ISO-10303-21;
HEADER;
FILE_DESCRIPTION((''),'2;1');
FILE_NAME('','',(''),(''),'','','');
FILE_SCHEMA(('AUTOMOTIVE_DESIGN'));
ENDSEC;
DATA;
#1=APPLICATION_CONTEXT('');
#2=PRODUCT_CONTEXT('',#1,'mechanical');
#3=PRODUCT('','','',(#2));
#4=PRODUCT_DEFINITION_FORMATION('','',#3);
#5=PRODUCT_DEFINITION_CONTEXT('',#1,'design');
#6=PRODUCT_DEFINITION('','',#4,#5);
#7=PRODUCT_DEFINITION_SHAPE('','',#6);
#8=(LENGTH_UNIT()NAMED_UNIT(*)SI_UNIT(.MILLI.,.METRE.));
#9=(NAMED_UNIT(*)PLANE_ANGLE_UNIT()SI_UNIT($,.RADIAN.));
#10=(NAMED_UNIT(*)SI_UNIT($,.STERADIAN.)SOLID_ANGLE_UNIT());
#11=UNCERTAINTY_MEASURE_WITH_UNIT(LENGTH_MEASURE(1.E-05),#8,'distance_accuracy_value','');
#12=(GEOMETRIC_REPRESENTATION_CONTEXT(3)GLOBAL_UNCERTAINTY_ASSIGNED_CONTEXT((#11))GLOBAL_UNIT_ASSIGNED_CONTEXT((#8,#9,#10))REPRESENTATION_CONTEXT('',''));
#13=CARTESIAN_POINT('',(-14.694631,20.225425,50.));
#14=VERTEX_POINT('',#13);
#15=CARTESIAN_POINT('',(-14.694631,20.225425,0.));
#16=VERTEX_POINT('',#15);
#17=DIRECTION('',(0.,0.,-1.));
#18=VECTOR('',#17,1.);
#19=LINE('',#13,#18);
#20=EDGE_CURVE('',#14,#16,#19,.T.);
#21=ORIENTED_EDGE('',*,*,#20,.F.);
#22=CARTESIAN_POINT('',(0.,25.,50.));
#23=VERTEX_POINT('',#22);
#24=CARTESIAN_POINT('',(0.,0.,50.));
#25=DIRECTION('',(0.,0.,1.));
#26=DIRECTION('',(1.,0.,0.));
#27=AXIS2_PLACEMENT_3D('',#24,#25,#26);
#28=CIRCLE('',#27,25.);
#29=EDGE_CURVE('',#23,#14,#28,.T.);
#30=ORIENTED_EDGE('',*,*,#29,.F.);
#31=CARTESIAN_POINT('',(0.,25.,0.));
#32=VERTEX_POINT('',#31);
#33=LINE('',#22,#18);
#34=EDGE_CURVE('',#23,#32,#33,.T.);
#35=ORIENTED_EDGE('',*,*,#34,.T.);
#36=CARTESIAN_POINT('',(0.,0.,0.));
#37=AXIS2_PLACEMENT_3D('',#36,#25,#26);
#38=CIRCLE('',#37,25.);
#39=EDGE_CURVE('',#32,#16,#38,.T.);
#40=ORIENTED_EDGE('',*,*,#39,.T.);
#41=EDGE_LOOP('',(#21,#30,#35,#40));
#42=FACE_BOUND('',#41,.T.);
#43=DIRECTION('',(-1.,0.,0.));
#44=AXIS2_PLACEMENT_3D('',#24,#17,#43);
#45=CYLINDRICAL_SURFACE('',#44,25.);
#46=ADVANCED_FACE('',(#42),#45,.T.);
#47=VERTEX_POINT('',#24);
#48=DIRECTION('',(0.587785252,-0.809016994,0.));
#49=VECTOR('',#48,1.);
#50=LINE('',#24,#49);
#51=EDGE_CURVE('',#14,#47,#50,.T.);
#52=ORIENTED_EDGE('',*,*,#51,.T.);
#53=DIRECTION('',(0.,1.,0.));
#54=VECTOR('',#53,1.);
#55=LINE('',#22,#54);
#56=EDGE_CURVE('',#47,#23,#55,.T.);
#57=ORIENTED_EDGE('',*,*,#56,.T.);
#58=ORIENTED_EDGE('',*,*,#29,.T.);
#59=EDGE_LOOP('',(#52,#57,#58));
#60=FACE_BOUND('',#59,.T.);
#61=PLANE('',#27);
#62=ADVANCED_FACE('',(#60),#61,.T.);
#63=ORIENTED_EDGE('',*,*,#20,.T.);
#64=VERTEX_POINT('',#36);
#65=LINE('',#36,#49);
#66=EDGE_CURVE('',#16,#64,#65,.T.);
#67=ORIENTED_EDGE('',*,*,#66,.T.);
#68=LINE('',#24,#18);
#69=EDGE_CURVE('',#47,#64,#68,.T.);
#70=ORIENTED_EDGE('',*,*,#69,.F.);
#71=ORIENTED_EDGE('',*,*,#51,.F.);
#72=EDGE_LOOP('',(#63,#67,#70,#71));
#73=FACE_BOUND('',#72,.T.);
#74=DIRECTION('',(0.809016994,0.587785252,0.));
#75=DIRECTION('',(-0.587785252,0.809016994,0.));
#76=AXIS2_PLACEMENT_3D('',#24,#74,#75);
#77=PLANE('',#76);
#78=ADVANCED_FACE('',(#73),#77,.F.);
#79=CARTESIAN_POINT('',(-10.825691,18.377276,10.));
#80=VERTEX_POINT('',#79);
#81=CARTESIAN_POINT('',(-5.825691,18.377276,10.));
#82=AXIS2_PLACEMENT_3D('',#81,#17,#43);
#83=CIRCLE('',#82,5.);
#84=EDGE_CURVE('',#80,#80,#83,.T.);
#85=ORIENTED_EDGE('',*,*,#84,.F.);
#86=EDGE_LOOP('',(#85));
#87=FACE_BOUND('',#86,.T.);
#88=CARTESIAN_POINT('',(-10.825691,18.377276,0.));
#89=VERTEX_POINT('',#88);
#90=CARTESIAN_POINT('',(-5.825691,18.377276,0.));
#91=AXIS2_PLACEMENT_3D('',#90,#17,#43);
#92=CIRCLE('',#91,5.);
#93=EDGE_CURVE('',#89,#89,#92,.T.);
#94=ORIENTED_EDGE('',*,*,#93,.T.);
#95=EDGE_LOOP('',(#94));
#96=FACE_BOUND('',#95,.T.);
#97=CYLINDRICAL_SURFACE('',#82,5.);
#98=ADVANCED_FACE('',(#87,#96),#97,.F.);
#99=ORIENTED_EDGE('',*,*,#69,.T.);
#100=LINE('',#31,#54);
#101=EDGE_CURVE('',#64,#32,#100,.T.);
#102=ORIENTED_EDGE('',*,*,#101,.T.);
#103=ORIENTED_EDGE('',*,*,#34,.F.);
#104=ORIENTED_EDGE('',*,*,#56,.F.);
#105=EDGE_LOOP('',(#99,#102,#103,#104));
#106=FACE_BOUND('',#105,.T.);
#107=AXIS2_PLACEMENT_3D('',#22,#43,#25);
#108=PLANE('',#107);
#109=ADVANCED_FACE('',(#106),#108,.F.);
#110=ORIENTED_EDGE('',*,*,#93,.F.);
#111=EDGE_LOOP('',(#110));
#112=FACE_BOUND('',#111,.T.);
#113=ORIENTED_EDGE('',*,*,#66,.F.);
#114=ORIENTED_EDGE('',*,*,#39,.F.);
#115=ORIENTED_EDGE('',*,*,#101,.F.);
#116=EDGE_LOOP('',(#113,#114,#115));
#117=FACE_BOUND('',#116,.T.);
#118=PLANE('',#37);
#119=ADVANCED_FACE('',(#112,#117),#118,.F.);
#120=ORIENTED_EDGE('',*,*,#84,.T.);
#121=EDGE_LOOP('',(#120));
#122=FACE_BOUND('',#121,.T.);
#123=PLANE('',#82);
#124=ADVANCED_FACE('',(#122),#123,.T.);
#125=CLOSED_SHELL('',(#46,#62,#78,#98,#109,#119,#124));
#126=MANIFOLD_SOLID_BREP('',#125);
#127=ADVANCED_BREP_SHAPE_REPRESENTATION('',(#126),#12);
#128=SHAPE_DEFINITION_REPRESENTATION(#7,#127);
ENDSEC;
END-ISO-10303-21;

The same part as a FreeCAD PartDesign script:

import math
import FreeCAD as App
import Part
import Sketcher
Q = App.Units.Quantity

doc = App.newDocument("Part")
body = doc.addObject("PartDesign::Body", "Body")

# Sketch on XY plane
sketch1 = doc.addObject("Sketcher::SketchObject", "Sketch")
body.addObject(sketch1)
sketch1.AttachmentSupport = (doc.XY_Plane, [""])
sketch1.MapMode = "FlatFace"
sketch1.addGeometry([
    Part.LineSegment(App.Vector(0, 0, 0), App.Vector(0, 25, 0)),
    Part.ArcOfCircle(Part.Circle(App.Vector(0, 0, 0), App.Vector(0, 0, 1), 25), math.radians(90), math.radians(126)),
    Part.LineSegment(App.Vector(-15, 20, 0), App.Vector(0, 0, 0)),
], False)
sketch1.addConstraint([
    Sketcher.Constraint("Coincident", 0, 2, 1, 1),
    Sketcher.Constraint("Coincident", 1, 2, 2, 1),
    Sketcher.Constraint("Coincident", 2, 2, 0, 1),
    Sketcher.Constraint("Vertical", 0),
    Sketcher.Constraint("Coincident", 1, 3, -1, 1),
    Sketcher.Constraint("Coincident", 2, 2, -1, 1),
    Sketcher.Constraint("Radius", 1, 25.0),
    Sketcher.Constraint("Angle", 2, Q("-54 deg")),
])
pad1 = doc.addObject("PartDesign::Pad", "Pad")
body.addObject(pad1)
pad1.Profile = sketch1
pad1.Length = 50

# Sketch on XY plane
sketch2 = doc.addObject("Sketcher::SketchObject", "Sketch001")
body.addObject(sketch2)
sketch2.AttachmentSupport = (doc.XY_Plane, [""])
sketch2.MapMode = "FlatFace"
sketch2.addGeometry(Part.Circle(App.Vector(-6, 18, 0), App.Vector(0, 0, 1), 5), False)
sketch2.addConstraint([
    Sketcher.Constraint("Diameter", 0, 10.0),
    Sketcher.Constraint("DistanceX", 0, 3, -1, 1, 5.825691),
    Sketcher.Constraint("DistanceY", -1, 1, 0, 3, 18.377276),
])
pocket1 = doc.addObject("PartDesign::Pocket", "Pocket")
body.addObject(pocket1)
pocket1.Profile = sketch2
pocket1.Length = 10
pocket1.Reversed = True

doc.recompute()
